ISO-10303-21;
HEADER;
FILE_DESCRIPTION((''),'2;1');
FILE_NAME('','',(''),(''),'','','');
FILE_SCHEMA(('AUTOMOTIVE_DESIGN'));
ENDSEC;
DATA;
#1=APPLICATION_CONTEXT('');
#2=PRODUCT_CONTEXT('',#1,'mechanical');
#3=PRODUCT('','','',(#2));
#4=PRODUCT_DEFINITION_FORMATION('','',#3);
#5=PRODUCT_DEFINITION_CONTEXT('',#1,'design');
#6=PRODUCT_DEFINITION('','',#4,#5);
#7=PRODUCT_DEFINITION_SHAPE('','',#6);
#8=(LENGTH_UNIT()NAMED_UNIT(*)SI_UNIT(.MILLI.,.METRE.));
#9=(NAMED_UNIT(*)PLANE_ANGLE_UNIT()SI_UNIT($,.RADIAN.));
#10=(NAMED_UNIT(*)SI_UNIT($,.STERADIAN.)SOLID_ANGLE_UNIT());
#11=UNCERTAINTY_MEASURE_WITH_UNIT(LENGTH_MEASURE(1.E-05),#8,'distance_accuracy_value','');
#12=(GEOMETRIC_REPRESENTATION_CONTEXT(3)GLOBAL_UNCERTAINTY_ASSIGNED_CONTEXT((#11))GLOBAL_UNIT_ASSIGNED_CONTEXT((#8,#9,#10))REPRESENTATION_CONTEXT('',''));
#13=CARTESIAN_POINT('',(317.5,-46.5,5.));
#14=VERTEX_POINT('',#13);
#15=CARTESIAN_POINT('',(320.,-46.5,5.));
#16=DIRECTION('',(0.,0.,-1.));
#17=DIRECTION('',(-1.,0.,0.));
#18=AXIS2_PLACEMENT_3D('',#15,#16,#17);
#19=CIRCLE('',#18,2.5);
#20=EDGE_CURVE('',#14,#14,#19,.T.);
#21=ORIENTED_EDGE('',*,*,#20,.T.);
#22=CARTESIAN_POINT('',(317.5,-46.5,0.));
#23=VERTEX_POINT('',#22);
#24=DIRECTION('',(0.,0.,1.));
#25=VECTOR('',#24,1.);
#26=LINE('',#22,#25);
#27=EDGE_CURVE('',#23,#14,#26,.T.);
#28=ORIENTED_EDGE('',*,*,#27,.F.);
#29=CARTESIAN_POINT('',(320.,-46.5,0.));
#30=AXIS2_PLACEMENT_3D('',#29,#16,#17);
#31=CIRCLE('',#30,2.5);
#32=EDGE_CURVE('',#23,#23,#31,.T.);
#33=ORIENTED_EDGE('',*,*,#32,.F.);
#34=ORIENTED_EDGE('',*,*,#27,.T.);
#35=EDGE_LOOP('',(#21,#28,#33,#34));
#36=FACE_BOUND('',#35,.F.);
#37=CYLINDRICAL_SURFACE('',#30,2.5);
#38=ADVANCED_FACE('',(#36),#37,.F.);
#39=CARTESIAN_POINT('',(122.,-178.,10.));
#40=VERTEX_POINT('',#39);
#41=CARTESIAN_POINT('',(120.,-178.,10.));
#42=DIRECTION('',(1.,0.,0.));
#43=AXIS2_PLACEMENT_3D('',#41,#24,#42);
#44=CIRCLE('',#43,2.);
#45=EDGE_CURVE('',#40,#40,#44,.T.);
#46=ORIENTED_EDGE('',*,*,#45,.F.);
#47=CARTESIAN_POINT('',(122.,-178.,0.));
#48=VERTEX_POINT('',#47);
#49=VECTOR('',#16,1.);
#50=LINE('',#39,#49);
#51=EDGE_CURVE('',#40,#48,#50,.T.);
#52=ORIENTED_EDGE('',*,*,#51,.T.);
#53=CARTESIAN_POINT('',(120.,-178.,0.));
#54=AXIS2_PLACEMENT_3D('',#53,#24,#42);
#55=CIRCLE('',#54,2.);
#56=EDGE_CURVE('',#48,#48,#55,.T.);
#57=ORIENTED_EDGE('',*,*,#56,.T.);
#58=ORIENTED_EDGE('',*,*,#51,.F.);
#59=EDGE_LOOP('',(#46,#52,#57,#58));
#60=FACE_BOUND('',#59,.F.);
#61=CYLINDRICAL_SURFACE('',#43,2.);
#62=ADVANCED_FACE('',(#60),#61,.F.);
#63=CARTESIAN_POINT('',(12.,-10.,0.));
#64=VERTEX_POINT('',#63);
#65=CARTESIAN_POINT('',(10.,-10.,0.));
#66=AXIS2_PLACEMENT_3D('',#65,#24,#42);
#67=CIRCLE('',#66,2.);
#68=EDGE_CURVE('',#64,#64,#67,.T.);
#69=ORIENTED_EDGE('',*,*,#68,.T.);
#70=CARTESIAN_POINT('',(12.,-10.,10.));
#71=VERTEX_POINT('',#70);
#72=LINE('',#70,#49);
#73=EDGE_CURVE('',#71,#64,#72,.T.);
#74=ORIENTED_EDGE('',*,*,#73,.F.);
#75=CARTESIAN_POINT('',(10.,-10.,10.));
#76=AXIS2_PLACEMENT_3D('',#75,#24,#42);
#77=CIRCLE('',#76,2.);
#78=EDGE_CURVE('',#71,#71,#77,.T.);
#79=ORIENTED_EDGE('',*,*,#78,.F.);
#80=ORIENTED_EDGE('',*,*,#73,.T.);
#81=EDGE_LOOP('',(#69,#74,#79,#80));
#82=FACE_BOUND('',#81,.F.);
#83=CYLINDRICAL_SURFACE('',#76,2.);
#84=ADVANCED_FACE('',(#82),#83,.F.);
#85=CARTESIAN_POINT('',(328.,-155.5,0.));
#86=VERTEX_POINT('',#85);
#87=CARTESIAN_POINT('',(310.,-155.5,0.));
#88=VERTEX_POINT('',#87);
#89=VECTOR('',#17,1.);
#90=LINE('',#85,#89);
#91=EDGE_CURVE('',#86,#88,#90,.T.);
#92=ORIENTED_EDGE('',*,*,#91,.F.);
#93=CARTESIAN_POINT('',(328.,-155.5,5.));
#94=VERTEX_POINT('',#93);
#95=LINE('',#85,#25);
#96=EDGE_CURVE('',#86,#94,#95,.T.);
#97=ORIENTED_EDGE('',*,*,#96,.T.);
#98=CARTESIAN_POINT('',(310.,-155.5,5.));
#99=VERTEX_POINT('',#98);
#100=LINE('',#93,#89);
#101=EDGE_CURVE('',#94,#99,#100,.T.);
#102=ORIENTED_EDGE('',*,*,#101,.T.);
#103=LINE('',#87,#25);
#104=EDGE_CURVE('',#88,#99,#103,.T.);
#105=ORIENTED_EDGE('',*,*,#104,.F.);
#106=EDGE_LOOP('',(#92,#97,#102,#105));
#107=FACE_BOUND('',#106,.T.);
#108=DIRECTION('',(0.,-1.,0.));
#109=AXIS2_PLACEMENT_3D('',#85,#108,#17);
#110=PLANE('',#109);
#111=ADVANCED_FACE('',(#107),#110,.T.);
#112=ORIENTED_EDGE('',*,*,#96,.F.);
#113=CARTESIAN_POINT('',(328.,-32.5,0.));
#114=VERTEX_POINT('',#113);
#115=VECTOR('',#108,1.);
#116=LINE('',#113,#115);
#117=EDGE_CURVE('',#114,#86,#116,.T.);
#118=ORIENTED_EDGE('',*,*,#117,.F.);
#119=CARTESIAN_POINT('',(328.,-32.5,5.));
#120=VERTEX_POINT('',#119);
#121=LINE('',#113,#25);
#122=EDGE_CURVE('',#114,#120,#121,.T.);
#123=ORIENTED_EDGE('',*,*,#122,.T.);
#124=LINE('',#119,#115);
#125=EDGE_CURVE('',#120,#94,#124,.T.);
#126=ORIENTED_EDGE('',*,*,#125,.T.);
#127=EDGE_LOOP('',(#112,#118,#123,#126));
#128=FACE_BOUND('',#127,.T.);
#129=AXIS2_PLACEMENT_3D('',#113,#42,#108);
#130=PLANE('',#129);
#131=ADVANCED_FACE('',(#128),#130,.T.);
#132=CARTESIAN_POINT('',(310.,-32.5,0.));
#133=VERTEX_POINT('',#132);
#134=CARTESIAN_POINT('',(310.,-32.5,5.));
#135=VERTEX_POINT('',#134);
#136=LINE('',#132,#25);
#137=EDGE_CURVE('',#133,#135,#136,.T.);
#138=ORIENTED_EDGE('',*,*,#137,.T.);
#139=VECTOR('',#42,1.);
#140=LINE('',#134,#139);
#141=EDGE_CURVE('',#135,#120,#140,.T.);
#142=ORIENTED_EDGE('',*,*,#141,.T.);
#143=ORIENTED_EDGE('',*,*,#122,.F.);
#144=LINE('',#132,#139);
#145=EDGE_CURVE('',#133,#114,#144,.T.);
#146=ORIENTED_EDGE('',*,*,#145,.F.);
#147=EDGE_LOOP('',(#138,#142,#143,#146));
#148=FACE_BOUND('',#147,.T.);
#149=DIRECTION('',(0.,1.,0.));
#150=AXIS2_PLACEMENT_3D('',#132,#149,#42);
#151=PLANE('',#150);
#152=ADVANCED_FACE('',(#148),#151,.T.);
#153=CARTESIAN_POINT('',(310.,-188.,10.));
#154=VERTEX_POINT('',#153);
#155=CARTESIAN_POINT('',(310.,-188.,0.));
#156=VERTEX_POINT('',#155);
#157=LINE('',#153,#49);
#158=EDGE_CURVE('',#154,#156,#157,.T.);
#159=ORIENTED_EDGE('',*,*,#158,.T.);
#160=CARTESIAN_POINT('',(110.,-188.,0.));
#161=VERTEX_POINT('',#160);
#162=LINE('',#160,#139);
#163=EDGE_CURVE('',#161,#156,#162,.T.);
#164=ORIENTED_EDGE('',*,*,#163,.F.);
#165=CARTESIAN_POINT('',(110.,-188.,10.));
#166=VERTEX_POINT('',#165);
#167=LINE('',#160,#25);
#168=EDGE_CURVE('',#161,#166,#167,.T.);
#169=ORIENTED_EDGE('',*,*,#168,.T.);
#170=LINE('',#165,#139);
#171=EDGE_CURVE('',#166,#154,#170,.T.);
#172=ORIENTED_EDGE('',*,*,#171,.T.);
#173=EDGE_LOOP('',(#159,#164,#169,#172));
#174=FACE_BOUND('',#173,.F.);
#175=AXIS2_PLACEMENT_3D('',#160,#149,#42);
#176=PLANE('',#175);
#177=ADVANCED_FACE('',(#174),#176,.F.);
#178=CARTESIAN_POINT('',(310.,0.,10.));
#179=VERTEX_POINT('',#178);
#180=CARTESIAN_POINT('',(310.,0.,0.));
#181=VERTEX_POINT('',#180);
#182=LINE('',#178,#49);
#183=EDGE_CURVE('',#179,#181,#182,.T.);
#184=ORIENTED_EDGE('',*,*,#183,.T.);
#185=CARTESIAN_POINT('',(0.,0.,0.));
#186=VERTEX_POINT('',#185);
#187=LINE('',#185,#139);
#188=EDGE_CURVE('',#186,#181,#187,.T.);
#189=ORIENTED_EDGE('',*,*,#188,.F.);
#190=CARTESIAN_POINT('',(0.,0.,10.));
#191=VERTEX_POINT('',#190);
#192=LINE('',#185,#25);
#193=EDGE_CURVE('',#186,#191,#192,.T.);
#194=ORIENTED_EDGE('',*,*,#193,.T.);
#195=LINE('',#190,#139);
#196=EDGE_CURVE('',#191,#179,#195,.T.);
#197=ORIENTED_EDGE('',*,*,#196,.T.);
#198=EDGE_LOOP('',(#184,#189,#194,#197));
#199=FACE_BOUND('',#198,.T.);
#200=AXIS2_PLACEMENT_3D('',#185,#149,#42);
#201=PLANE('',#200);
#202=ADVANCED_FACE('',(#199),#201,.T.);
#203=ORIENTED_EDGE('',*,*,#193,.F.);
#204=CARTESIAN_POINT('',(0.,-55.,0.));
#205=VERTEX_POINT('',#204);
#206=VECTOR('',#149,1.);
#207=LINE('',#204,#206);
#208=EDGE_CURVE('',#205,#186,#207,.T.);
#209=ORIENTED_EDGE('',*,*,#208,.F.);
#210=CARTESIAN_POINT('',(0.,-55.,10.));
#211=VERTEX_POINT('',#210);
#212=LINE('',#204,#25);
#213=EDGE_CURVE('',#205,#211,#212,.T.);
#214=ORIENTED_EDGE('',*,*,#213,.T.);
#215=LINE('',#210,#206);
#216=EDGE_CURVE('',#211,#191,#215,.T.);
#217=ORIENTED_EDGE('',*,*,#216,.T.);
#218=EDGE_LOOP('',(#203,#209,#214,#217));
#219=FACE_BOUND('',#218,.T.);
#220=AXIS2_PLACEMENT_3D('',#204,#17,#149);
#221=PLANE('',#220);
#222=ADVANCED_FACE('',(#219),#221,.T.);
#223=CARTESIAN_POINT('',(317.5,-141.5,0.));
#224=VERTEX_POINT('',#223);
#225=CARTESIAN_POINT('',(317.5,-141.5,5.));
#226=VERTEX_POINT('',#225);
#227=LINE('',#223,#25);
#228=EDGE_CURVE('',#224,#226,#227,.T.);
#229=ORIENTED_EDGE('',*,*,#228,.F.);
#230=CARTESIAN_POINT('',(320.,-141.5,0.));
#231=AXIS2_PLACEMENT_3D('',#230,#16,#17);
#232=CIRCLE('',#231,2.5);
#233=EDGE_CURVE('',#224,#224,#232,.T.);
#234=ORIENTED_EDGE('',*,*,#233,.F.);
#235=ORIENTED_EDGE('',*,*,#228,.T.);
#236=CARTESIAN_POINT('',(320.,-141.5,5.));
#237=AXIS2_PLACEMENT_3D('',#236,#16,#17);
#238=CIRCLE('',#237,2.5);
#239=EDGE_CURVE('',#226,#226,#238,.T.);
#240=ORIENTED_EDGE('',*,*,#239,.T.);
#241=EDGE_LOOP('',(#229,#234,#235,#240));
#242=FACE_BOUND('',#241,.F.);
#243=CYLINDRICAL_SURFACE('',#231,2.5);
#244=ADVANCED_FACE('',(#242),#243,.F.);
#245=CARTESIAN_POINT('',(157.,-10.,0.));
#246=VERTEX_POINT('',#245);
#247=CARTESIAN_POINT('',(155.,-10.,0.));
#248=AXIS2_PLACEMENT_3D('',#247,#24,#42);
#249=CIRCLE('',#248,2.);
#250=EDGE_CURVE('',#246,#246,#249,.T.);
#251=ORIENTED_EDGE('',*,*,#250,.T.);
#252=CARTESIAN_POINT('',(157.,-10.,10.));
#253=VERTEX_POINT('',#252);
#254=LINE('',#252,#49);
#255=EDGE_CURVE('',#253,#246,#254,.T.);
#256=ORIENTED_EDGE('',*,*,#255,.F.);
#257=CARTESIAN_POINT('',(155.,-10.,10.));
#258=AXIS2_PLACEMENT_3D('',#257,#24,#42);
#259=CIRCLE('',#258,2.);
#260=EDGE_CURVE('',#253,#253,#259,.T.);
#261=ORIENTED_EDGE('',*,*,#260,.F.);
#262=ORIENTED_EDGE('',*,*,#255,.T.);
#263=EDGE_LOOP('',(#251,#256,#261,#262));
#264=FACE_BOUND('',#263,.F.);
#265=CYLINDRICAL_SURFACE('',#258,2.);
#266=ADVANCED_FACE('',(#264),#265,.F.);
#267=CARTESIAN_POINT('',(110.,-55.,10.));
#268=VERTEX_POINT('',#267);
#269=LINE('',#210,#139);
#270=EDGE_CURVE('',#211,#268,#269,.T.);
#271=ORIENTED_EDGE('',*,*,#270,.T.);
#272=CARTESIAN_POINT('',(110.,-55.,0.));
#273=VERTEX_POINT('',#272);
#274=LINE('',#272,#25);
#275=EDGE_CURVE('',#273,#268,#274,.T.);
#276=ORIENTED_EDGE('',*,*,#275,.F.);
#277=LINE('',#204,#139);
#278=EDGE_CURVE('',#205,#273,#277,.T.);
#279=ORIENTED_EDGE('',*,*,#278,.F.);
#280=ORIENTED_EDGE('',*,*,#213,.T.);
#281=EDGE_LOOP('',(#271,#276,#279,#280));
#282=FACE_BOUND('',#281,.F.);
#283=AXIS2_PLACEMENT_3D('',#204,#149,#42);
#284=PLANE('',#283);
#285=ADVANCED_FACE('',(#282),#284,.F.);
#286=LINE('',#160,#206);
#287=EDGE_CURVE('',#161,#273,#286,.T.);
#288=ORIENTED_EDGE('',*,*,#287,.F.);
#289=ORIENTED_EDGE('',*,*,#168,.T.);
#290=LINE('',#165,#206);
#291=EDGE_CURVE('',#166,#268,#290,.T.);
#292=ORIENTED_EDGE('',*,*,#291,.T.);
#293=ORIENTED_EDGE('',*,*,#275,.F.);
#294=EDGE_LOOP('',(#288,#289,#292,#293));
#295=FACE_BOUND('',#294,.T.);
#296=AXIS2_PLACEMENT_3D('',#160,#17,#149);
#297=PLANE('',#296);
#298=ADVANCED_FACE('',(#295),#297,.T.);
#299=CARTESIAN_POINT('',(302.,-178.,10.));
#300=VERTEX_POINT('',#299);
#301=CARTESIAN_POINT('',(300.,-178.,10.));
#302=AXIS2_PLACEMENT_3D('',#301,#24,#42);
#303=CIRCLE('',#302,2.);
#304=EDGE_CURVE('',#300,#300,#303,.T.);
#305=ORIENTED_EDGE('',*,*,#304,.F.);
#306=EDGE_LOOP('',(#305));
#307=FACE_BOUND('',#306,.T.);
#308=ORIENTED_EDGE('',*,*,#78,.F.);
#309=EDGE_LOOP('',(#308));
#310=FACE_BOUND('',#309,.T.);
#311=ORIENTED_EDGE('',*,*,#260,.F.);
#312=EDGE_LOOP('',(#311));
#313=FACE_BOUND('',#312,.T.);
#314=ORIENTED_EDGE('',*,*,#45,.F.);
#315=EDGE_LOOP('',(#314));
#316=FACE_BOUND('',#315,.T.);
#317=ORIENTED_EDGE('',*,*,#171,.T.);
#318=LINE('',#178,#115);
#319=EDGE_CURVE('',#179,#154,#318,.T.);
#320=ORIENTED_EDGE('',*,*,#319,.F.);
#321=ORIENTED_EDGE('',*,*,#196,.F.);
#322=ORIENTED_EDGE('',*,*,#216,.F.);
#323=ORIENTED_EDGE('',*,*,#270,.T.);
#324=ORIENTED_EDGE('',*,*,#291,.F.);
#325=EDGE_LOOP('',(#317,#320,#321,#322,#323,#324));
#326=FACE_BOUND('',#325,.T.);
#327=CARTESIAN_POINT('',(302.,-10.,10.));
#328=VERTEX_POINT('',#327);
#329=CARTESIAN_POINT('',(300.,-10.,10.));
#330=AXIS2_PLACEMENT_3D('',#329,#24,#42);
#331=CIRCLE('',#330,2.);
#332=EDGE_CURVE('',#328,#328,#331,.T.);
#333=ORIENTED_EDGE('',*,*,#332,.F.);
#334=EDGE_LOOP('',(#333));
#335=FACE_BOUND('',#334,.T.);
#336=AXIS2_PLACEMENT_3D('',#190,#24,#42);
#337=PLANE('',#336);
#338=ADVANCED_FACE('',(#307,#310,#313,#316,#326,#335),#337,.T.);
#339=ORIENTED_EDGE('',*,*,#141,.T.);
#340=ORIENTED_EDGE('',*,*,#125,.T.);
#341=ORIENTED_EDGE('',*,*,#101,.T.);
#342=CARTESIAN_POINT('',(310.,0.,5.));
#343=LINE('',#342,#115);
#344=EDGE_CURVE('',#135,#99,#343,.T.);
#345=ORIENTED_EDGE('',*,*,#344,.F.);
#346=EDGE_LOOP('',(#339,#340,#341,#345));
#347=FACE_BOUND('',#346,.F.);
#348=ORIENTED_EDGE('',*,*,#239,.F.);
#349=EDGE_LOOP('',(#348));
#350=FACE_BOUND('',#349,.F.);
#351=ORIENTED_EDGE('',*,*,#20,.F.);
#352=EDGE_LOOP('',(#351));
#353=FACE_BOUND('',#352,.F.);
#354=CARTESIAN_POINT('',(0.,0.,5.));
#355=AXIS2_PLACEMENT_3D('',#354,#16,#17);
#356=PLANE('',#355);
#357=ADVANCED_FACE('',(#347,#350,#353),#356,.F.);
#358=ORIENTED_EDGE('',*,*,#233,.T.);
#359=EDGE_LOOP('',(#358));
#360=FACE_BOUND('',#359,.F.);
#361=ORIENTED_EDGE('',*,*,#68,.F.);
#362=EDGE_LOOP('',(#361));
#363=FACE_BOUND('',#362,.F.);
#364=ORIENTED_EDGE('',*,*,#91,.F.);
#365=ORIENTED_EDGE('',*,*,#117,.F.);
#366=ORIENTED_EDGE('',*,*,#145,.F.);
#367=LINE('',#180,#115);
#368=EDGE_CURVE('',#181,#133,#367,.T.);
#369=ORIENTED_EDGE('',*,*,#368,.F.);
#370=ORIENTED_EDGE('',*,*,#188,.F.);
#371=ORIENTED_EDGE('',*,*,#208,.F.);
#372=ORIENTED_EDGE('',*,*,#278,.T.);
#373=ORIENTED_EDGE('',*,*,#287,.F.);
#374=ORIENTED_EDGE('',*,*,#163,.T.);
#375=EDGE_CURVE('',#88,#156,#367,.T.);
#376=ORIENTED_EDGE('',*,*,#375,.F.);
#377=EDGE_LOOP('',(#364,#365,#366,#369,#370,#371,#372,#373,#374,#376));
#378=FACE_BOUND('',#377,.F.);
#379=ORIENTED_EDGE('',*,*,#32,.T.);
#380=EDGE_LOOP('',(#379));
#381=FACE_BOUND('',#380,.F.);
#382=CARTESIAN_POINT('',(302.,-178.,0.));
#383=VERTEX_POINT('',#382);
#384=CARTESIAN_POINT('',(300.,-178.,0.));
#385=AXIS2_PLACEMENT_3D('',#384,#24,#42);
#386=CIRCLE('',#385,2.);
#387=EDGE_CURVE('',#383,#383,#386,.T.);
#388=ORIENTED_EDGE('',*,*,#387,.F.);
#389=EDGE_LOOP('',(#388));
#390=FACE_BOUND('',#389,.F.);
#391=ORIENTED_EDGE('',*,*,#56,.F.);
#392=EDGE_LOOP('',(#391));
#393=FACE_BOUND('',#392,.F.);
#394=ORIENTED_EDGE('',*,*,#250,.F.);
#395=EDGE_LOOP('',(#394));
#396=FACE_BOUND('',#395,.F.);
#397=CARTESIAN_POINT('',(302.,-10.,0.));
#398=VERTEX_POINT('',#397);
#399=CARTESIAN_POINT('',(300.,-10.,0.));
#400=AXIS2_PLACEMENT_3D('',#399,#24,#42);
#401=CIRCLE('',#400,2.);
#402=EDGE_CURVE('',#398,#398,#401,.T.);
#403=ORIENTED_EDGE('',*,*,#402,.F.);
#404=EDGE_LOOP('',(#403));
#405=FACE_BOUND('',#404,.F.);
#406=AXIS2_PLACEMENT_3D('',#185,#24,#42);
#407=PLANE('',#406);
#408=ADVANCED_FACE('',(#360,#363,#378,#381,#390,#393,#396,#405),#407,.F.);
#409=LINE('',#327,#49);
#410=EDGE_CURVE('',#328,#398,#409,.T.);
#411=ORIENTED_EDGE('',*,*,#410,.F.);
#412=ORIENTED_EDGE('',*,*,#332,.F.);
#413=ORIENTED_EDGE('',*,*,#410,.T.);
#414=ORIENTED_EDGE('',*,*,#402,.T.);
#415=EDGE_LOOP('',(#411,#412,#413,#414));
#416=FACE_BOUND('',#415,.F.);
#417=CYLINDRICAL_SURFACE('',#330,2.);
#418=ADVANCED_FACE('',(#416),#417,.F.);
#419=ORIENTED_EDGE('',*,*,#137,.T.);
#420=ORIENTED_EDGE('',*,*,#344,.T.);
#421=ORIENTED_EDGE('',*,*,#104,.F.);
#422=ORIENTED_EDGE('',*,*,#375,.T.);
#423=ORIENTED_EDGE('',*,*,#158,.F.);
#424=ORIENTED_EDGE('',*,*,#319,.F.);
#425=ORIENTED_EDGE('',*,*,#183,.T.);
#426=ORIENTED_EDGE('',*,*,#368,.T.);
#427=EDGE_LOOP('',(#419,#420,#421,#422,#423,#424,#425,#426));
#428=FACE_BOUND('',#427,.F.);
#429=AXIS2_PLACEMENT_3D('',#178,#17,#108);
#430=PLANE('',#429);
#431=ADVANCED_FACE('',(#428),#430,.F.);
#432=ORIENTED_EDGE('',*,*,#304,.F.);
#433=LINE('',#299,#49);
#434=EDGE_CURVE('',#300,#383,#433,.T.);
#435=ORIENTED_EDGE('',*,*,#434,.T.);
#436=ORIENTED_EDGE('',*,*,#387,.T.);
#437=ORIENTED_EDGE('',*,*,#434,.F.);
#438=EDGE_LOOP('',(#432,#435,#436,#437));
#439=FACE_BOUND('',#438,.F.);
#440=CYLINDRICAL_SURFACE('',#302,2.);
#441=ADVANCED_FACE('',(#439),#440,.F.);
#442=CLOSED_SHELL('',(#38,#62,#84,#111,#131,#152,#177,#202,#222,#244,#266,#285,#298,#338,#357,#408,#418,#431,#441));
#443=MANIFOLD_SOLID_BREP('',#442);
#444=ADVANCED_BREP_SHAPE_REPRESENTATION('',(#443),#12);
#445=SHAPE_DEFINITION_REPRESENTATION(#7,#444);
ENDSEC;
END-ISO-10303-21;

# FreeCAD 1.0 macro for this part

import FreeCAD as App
import Part
import Sketcher

V = App.Vector
Q = App.Units.Quantity


def add_polygon(sketch, points):
    """Adds a closed chain of lines whose ends are joined by coincident constraints."""
    first, n = sketch.GeometryCount, len(points)
    for a, b in zip(points, points[1:] + points[:1]):
        sketch.addGeometry(Part.LineSegment(App.Vector(*a, 0), App.Vector(*b, 0)), False)
    for i in range(n):
        sketch.addConstraint(Sketcher.Constraint("Coincident", first + i, 2, first + (i + 1) % n, 1))

doc = App.newDocument("Part")
params = doc.addObject("Spreadsheet::Sheet", "Params")
for row, (alias, value) in enumerate([
    ("sketch1_width", "620 mm"),
    ("sketch1_width2", "400 mm"),
    ("sketch1_height", "133 mm"),
    ("pad1_length", "10 mm"),
    ("sketch2_width", "310 mm"),
    ("sketch2_height", "188 mm"),
    ("sketch3_diameter", "4 mm"),
    ("sketch4_diameter", "5 mm"),
    ("sketch4_width", "18 mm"),
    ("sketch4_height", "123 mm"),
    ("pad2_length", "5 mm"),
], start=1):
    params.set(f"A{row}", alias)
    params.set(f"B{row}", "=" + value)
    params.setAlias(f"B{row}", alias)

body = doc.addObject("PartDesign::Body", "Body")

sketch1 = body.newObject("Sketcher::SketchObject", "Sketch")
sketch1.AttachmentSupport = (doc.getObject("XY_Plane"), [""])
sketch1.MapMode = "FlatFace"
add_polygon(sketch1, [(620, 0), (0, 0), (0, -55), (110, -55), (110, -188), (510, -188), (510, -55), (620, -55)])
sketch1.addConstraint([
    Sketcher.Constraint("Horizontal", 0),
    Sketcher.Constraint("Vertical", 1),
    Sketcher.Constraint("Horizontal", 2),
    Sketcher.Constraint("Vertical", 3),
    Sketcher.Constraint("Horizontal", 4),
    Sketcher.Constraint("Vertical", 5),
    Sketcher.Constraint("Horizontal", 6),
    Sketcher.Constraint("Vertical", 7),
    Sketcher.Constraint("Coincident", 0, 2, -1, 1),
    Sketcher.Constraint("Horizontal", 2, 2, 5, 2),
    Sketcher.Constraint("Equal", 2, 6),
    Sketcher.Constraint("DistanceX", 0, 2, 0, 1, Q("620 mm")),
    Sketcher.Constraint("DistanceX", 4, 1, 4, 2, Q("400 mm")),
    Sketcher.Constraint("DistanceY", 3, 2, 3, 1, Q("133 mm")),
    Sketcher.Constraint("DistanceY", 3, 2, -1, 1, Q("188 mm")),
])
sketch1.setExpression("Constraints[19]", "Params.sketch1_width")
sketch1.setExpression("Constraints[20]", "Params.sketch1_width2")
sketch1.setExpression("Constraints[21]", "Params.sketch1_height")
pad1 = body.newObject("PartDesign::Pad", "Pad")
pad1.Profile = sketch1
pad1.setExpression("Length", "Params.pad1_length")

sketch2 = body.newObject("Sketcher::SketchObject", "Sketch001")
sketch2.AttachmentSupport = (doc.getObject("XY_Plane"), [""])
sketch2.MapMode = "FlatFace"
sketch2.AttachmentOffset = App.Placement(V(0, 0, 10), App.Rotation())
add_polygon(sketch2, [(620, -188), (620, 0), (310, 0), (310, -188)])
sketch2.addConstraint([
    Sketcher.Constraint("Vertical", 0),
    Sketcher.Constraint("Horizontal", 1),
    Sketcher.Constraint("Vertical", 2),
    Sketcher.Constraint("Horizontal", 3),
    Sketcher.Constraint("PointOnObject", 0, 2, -1),
    Sketcher.Constraint("DistanceX", 1, 2, 1, 1, Q("310 mm")),
    Sketcher.Constraint("DistanceY", 0, 1, 0, 2, Q("188 mm")),
    Sketcher.Constraint("DistanceX", -1, 1, 0, 2, Q("620 mm")),
])
sketch2.setExpression("Constraints[9]", "Params.sketch2_width")
sketch2.setExpression("Constraints[10]", "Params.sketch2_height")
pocket1 = body.newObject("PartDesign::Pocket", "Pocket")
pocket1.Profile = sketch2
pocket1.Type = "ThroughAll"

sketch3 = body.newObject("Sketcher::SketchObject", "Sketch002")
sketch3.AttachmentSupport = (doc.getObject("XY_Plane"), [""])
sketch3.MapMode = "FlatFace"
sketch3.AttachmentOffset = App.Placement(V(0, 0, 10), App.Rotation())
sketch3.addGeometry([
    Part.Circle(V(10, -10, 0), V(0, 0, 1), 2),
    Part.Circle(V(155, -10, 0), V(0, 0, 1), 2),
    Part.Circle(V(300, -10, 0), V(0, 0, 1), 2),
    Part.Circle(V(120, -178, 0), V(0, 0, 1), 2),
    Part.Circle(V(300, -178, 0), V(0, 0, 1), 2),
], False)
sketch3.addConstraint([
    Sketcher.Constraint("Equal", 0, 1),
    Sketcher.Constraint("Equal", 1, 2),
    Sketcher.Constraint("Equal", 2, 3),
    Sketcher.Constraint("Equal", 3, 4),
    Sketcher.Constraint("Horizontal", 0, 3, 1, 3),
    Sketcher.Constraint("Horizontal", 1, 3, 2, 3),
    Sketcher.Constraint("Horizontal", 3, 3, 4, 3),
    Sketcher.Constraint("Vertical", 2, 3, 4, 3),
    Sketcher.Constraint("Diameter", 0, Q("4 mm")),
    Sketcher.Constraint("DistanceX", -1, 1, 0, 3, Q("10 mm")),
    Sketcher.Constraint("DistanceY", 0, 3, -1, 1, Q("10 mm")),
    Sketcher.Constraint("DistanceX", -1, 1, 1, 3, Q("155 mm")),
    Sketcher.Constraint("DistanceX", -1, 1, 2, 3, Q("300 mm")),
    Sketcher.Constraint("DistanceX", -1, 1, 3, 3, Q("120 mm")),
    Sketcher.Constraint("DistanceY", 3, 3, -1, 1, Q("178 mm")),
])
sketch3.setExpression("Constraints[8]", "Params.sketch3_diameter")
pocket2 = body.newObject("PartDesign::Pocket", "Pocket001")
pocket2.Profile = sketch3
pocket2.Type = "ThroughAll"

sketch4 = body.newObject("Sketcher::SketchObject", "Sketch003")
sketch4.AttachmentSupport = (doc.getObject("XY_Plane"), [""])
sketch4.MapMode = "FlatFace"
add_polygon(sketch4, [(310, -155.5), (310, -32.5), (328, -32.5), (328, -155.5)])
sketch4.addGeometry(Part.Circle(V(320, -141.5, 0), V(0, 0, 1), 2.5), False)
sketch4.addGeometry(Part.Circle(V(320, -46.5, 0), V(0, 0, 1), 2.5), False)
sketch4.addConstraint([
    Sketcher.Constraint("Vertical", 0),
    Sketcher.Constraint("Horizontal", 1),
    Sketcher.Constraint("Vertical", 2),
    Sketcher.Constraint("Horizontal", 3),
    Sketcher.Constraint("Equal", 4, 5),
    Sketcher.Constraint("Vertical", 4, 3, 5, 3),
    Sketcher.Constraint("Diameter", 4, Q("5 mm")),
    Sketcher.Constraint("DistanceX", 1, 1, 1, 2, Q("18 mm")),
    Sketcher.Constraint("DistanceY", 0, 1, 0, 2, Q("123 mm")),
    Sketcher.Constraint("DistanceY", 4, 3, 5, 3, Q("95 mm")),
    Sketcher.Constraint("DistanceX", 0, 2, 5, 3, Q("10 mm")),
    Sketcher.Constraint("DistanceX", -1, 1, 4, 3, Q("320 mm")),
    Sketcher.Constraint("DistanceY", 5, 3, 0, 2, Q("14 mm")),
    Sketcher.Constraint("DistanceY", 4, 3, -1, 1, Q("141.5 mm")),
])
sketch4.setExpression("Constraints[10]", "Params.sketch4_diameter")
sketch4.setExpression("Constraints[11]", "Params.sketch4_width")
sketch4.setExpression("Constraints[12]", "Params.sketch4_height")
pad2 = body.newObject("PartDesign::Pad", "Pad001")
pad2.Profile = sketch4
pad2.setExpression("Length", "Params.pad2_length")

doc.recompute()
